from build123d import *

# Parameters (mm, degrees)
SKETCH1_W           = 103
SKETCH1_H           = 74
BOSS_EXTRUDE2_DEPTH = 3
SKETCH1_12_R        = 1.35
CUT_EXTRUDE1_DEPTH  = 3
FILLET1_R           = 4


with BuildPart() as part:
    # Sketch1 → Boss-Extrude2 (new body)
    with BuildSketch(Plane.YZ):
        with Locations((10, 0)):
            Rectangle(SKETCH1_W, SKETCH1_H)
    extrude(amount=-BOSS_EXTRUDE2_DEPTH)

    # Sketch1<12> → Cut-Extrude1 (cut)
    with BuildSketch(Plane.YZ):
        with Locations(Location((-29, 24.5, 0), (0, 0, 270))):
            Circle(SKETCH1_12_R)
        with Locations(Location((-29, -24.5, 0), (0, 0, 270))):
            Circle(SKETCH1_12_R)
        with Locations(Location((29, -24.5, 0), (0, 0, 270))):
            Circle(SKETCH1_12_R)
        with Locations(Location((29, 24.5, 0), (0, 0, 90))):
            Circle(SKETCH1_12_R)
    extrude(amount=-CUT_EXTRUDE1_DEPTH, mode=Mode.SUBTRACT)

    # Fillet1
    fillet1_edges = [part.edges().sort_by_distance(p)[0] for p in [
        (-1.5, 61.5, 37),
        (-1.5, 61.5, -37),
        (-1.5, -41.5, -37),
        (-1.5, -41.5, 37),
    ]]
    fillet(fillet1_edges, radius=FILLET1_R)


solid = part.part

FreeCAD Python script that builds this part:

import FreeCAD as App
import Part
import Sketcher
from FreeCAD import Vector


def edges_at(feature, points):
    """Names of the edges that pass closest to the given points."""
    edges = feature.Shape.Edges
    near = lambda p: min(range(len(edges)), key=lambda i: edges[i].distToShape(Part.Vertex(*p))[0])
    return sorted({f"Edge{near(p) + 1}" for p in points})


def add_polygon(sketch, points):
    """Adds a closed chain of lines whose ends are joined by coincident constraints."""
    first, n = sketch.GeometryCount, len(points)
    for a, b in zip(points, points[1:] + points[:1]):
        sketch.addGeometry(Part.LineSegment(App.Vector(*a, 0), App.Vector(*b, 0)), False)
    for i in range(n):
        sketch.addConstraint(Sketcher.Constraint("Coincident", first + i, 2, first + (i + 1) % n, 1))

doc = App.newDocument("Part")
body = doc.addObject("PartDesign::Body", "Body")

# Sketch on YZ plane
sketch1 = body.newObject("Sketcher::SketchObject", "Sketch")
sketch1.AttachmentSupport = (doc.getObject("YZ_Plane"), [""])
sketch1.MapMode = "FlatFace"
add_polygon(sketch1, [(-42, 37), (-42, -37), (62, -37), (62, 37)])  # lines 0-3
sketch1.addConstraint([
    Sketcher.Constraint("Vertical", 0),
    Sketcher.Constraint("Horizontal", 1),
    Sketcher.Constraint("Vertical", 2),
    Sketcher.Constraint("Horizontal", 3),
    Sketcher.Constraint("DistanceX", 1, 1, 1, 2, 103.0),
    Sketcher.Constraint("DistanceY", 0, 2, 0, 1, 74.0),
    Sketcher.Constraint("DistanceY", 0, 2, -1, 1, 37.0),
    Sketcher.Constraint("DistanceX", 0, 2, -1, 1, 41.5),
])
pad1 = body.newObject("PartDesign::Pad", "Pad")
pad1.Profile = sketch1
pad1.Length = 3
pad1.Reversed = True

# Sketch on YZ plane
sketch2 = body.newObject("Sketcher::SketchObject", "Sketch001")
sketch2.AttachmentSupport = (doc.getObject("YZ_Plane"), [""])
sketch2.MapMode = "FlatFace"
sketch2.addGeometry([
    Part.Circle(Vector(-29, 24.5, 0), Vector(0, 0, 1), 1.4),
    Part.Circle(Vector(-29, -24.5, 0), Vector(0, 0, 1), 1.4),
    Part.Circle(Vector(29, -24.5, 0), Vector(0, 0, 1), 1.4),
    Part.Circle(Vector(29, 24.5, 0), Vector(0, 0, 1), 1.4),
], False)
sketch2.addConstraint([
    Sketcher.Constraint("Equal", 0, 1),
    Sketcher.Constraint("Equal", 1, 2),
    Sketcher.Constraint("Equal", 2, 3),
    Sketcher.Constraint("Symmetric", 0, 3, 2, 3, -1, 1),
    Sketcher.Constraint("Symmetric", 1, 3, 3, 3, -1, 1),
    Sketcher.Constraint("Symmetric", 1, 3, 2, 3, -2),
    Sketcher.Constraint("Diameter", 0, 2.7),
    Sketcher.Constraint("DistanceX", 0, 3, -1, 1, 29.0),
    Sketcher.Constraint("DistanceY", 1, 3, 0, 3, 49.0),
])
pocket1 = body.newObject("PartDesign::Pocket", "Pocket")
pocket1.Profile = sketch2
pocket1.Length = 3
doc.recompute()

fillet = body.newObject("PartDesign::Fillet", "Fillet")
fillet.Base = (pocket1, edges_at(pocket1, [
    (-1.5, 61.5, 37),
    (-1.5, 61.5, -37),
    (-1.5, -41.5, -37),
    (-1.5, -41.5, 37),
]))
fillet.Radius = 4

doc.recompute()
